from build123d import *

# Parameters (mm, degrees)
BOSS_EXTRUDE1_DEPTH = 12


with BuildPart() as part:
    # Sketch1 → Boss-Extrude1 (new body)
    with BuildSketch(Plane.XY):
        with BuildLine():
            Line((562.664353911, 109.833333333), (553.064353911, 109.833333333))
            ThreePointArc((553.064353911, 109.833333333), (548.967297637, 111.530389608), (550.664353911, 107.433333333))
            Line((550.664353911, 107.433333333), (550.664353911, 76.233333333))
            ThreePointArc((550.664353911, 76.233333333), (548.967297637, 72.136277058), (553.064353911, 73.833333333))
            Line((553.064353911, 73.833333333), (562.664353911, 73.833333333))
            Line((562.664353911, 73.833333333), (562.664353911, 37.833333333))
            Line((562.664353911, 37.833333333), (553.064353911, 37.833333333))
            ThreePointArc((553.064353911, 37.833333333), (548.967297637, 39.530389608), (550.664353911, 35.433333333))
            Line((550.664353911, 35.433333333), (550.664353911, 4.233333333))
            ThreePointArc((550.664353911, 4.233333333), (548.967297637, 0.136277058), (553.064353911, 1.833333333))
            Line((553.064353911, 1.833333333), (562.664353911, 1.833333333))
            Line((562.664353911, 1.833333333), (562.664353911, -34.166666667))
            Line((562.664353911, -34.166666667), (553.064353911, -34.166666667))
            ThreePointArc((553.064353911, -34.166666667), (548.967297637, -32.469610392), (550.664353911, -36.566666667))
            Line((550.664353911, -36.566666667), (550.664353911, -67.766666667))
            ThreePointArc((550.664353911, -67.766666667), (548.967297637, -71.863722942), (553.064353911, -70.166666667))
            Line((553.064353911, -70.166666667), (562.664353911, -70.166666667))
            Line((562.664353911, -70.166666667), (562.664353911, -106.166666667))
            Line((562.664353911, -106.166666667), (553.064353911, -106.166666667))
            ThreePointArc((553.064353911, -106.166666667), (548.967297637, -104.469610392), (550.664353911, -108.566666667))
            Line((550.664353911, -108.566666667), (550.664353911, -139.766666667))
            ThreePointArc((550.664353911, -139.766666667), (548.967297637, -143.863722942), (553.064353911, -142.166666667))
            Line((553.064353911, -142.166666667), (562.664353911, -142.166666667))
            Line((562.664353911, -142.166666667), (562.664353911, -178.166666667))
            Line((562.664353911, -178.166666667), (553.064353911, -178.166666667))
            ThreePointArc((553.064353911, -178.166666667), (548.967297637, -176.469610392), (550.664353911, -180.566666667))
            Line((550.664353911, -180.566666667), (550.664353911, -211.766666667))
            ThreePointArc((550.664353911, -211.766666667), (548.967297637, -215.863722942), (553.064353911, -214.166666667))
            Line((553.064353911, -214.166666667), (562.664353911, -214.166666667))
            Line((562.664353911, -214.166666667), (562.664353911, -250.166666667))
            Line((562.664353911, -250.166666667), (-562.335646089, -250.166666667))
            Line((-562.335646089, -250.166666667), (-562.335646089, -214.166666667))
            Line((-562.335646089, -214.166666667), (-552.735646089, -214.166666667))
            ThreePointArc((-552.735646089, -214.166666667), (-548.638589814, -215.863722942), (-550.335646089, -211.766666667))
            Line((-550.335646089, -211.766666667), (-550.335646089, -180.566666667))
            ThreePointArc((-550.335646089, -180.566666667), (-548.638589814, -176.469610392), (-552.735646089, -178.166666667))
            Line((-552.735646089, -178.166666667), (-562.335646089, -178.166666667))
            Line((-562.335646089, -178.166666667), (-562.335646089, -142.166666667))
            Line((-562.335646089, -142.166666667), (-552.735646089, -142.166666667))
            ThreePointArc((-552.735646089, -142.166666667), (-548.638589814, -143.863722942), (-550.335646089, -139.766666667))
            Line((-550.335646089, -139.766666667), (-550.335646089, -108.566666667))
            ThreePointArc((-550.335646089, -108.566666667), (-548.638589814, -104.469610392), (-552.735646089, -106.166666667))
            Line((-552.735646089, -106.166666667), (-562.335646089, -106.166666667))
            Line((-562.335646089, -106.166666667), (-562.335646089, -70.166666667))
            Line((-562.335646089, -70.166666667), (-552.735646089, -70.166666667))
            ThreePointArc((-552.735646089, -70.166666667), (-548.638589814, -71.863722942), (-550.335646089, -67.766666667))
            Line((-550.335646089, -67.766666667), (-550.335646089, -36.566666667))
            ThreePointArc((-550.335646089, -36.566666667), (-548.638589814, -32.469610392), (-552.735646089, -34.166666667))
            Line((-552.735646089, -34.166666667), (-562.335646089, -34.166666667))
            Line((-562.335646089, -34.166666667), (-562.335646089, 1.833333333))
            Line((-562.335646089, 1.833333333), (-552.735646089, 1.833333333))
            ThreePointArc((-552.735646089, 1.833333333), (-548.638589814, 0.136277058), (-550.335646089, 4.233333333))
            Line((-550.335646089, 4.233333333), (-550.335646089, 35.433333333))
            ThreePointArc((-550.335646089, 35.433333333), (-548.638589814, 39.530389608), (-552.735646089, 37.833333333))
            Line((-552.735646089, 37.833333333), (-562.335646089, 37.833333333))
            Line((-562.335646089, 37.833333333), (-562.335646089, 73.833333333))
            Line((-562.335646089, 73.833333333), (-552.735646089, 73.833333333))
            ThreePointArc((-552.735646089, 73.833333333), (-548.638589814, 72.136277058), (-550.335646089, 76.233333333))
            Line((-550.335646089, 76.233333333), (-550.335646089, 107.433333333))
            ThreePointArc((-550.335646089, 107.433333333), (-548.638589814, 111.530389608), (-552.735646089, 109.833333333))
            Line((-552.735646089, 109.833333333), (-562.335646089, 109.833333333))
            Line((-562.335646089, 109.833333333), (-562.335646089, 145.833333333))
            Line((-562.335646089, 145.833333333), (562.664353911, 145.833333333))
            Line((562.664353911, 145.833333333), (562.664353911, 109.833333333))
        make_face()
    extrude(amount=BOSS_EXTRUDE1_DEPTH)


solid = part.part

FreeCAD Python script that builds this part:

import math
import FreeCAD as App
import Part
import Sketcher
Q = App.Units.Quantity

doc = App.newDocument("Part")
body = doc.addObject("PartDesign::Body", "Body")

# Sketch on XY plane
sketch1 = doc.addObject("Sketcher::SketchObject", "Sketch")
body.addObject(sketch1)
sketch1.AttachmentSupport = (doc.XY_Plane, [""])
sketch1.MapMode = "FlatFace"
sketch1.addGeometry([
    Part.LineSegment(App.Vector(553.1, 109.8, 0), App.Vector(562.7, 109.8, 0)),  # 0
    Part.LineSegment(App.Vector(562.7, 109.8, 0), App.Vector(562.7, 145.8, 0)),  # 1
    Part.LineSegment(App.Vector(562.7, 145.8, 0), App.Vector(-562.3, 145.8, 0)),  # 2
    Part.LineSegment(App.Vector(-562.3, 145.8, 0), App.Vector(-562.3, 109.8, 0)),  # 3
    Part.LineSegment(App.Vector(-562.3, 109.8, 0), App.Vector(-552.7, 109.8, 0)),  # 4
    Part.ArcOfCircle(Part.Circle(App.Vector(-550.3, 109.8, 0), App.Vector(0, 0, 1), 2.4), math.radians(-90), math.radians(180)),  # 5
    Part.LineSegment(App.Vector(-550.3, 107.4, 0), App.Vector(-550.3, 76.2, 0)),  # 6
    Part.ArcOfCircle(Part.Circle(App.Vector(-550.3, 73.8, 0), App.Vector(0, 0, 1), 2.4), math.radians(180), math.radians(450)),  # 7
    Part.LineSegment(App.Vector(-552.7, 73.8, 0), App.Vector(-562.3, 73.8, 0)),  # 8
    Part.LineSegment(App.Vector(-562.3, 73.8, 0), App.Vector(-562.3, 37.8, 0)),  # 9
    Part.LineSegment(App.Vector(-562.3, 37.8, 0), App.Vector(-552.7, 37.8, 0)),  # 10
    Part.ArcOfCircle(Part.Circle(App.Vector(-550.3, 37.8, 0), App.Vector(0, 0, 1), 2.4), math.radians(-90), math.radians(180)),  # 11
    Part.LineSegment(App.Vector(-550.3, 35.4, 0), App.Vector(-550.3, 4.2, 0)),  # 12
    Part.ArcOfCircle(Part.Circle(App.Vector(-550.3, 1.8, 0), App.Vector(0, 0, 1), 2.4), math.radians(180), math.radians(450)),  # 13
    Part.LineSegment(App.Vector(-552.7, 1.8, 0), App.Vector(-562.3, 1.8, 0)),  # 14
    Part.LineSegment(App.Vector(-562.3, 1.8, 0), App.Vector(-562.3, -34.2, 0)),  # 15
    Part.LineSegment(App.Vector(-562.3, -34.2, 0), App.Vector(-552.7, -34.2, 0)),  # 16
    Part.ArcOfCircle(Part.Circle(App.Vector(-550.3, -34.2, 0), App.Vector(0, 0, 1), 2.4), math.radians(-90), math.radians(180)),  # 17
    Part.LineSegment(App.Vector(-550.3, -36.6, 0), App.Vector(-550.3, -67.8, 0)),  # 18
    Part.ArcOfCircle(Part.Circle(App.Vector(-550.3, -70.2, 0), App.Vector(0, 0, 1), 2.4), math.radians(180), math.radians(450)),  # 19
    Part.LineSegment(App.Vector(-552.7, -70.2, 0), App.Vector(-562.3, -70.2, 0)),  # 20
    Part.LineSegment(App.Vector(-562.3, -70.2, 0), App.Vector(-562.3, -106.2, 0)),  # 21
    Part.LineSegment(App.Vector(-562.3, -106.2, 0), App.Vector(-552.7, -106.2, 0)),  # 22
    Part.ArcOfCircle(Part.Circle(App.Vector(-550.3, -106.2, 0), App.Vector(0, 0, 1), 2.4), math.radians(-90), math.radians(180)),  # 23
    Part.LineSegment(App.Vector(-550.3, -108.6, 0), App.Vector(-550.3, -139.8, 0)),  # 24
    Part.ArcOfCircle(Part.Circle(App.Vector(-550.3, -142.2, 0), App.Vector(0, 0, 1), 2.4), math.radians(180), math.radians(450)),  # 25
    Part.LineSegment(App.Vector(-552.7, -142.2, 0), App.Vector(-562.3, -142.2, 0)),  # 26
    Part.LineSegment(App.Vector(-562.3, -142.2, 0), App.Vector(-562.3, -178.2, 0)),  # 27
    Part.LineSegment(App.Vector(-562.3, -178.2, 0), App.Vector(-552.7, -178.2, 0)),  # 28
    Part.ArcOfCircle(Part.Circle(App.Vector(-550.3, -178.2, 0), App.Vector(0, 0, 1), 2.4), math.radians(-90), math.radians(180)),  # 29
    Part.LineSegment(App.Vector(-550.3, -180.6, 0), App.Vector(-550.3, -211.8, 0)),  # 30
    Part.ArcOfCircle(Part.Circle(App.Vector(-550.3, -214.2, 0), App.Vector(0, 0, 1), 2.4), math.radians(180), math.radians(450)),  # 31
    Part.LineSegment(App.Vector(-552.7, -214.2, 0), App.Vector(-562.3, -214.2, 0)),  # 32
    Part.LineSegment(App.Vector(-562.3, -214.2, 0), App.Vector(-562.3, -250.2, 0)),  # 33
    Part.LineSegment(App.Vector(-562.3, -250.2, 0), App.Vector(562.7, -250.2, 0)),  # 34
    Part.LineSegment(App.Vector(562.7, -250.2, 0), App.Vector(562.7, -214.2, 0)),  # 35
    Part.LineSegment(App.Vector(562.7, -214.2, 0), App.Vector(553.1, -214.2, 0)),  # 36
    Part.ArcOfCircle(Part.Circle(App.Vector(550.7, -214.2, 0), App.Vector(0, 0, 1), 2.4), math.radians(90), math.radians(360)),  # 37
    Part.LineSegment(App.Vector(550.7, -211.8, 0), App.Vector(550.7, -180.6, 0)),  # 38
    Part.ArcOfCircle(Part.Circle(App.Vector(550.7, -178.2, 0), App.Vector(0, 0, 1), 2.4), math.radians(0), math.radians(270)),  # 39
    Part.LineSegment(App.Vector(553.1, -178.2, 0), App.Vector(562.7, -178.2, 0)),  # 40
    Part.LineSegment(App.Vector(562.7, -178.2, 0), App.Vector(562.7, -142.2, 0)),  # 41
    Part.LineSegment(App.Vector(562.7, -142.2, 0), App.Vector(553.1, -142.2, 0)),  # 42
    Part.ArcOfCircle(Part.Circle(App.Vector(550.7, -142.2, 0), App.Vector(0, 0, 1), 2.4), math.radians(90), math.radians(360)),  # 43
    Part.LineSegment(App.Vector(550.7, -139.8, 0), App.Vector(550.7, -108.6, 0)),  # 44
    Part.ArcOfCircle(Part.Circle(App.Vector(550.7, -106.2, 0), App.Vector(0, 0, 1), 2.4), math.radians(0), math.radians(270)),  # 45
    Part.LineSegment(App.Vector(553.1, -106.2, 0), App.Vector(562.7, -106.2, 0)),  # 46
    Part.LineSegment(App.Vector(562.7, -106.2, 0), App.Vector(562.7, -70.2, 0)),  # 47
    Part.LineSegment(App.Vector(562.7, -70.2, 0), App.Vector(553.1, -70.2, 0)),  # 48
    Part.ArcOfCircle(Part.Circle(App.Vector(550.7, -70.2, 0), App.Vector(0, 0, 1), 2.4), math.radians(90), math.radians(360)),  # 49
    Part.LineSegment(App.Vector(550.7, -67.8, 0), App.Vector(550.7, -36.6, 0)),  # 50
    Part.ArcOfCircle(Part.Circle(App.Vector(550.7, -34.2, 0), App.Vector(0, 0, 1), 2.4), math.radians(0), math.radians(270)),  # 51
    Part.LineSegment(App.Vector(553.1, -34.2, 0), App.Vector(562.7, -34.2, 0)),  # 52
    Part.LineSegment(App.Vector(562.7, -34.2, 0), App.Vector(562.7, 1.8, 0)),  # 53
    Part.LineSegment(App.Vector(562.7, 1.8, 0), App.Vector(553.1, 1.8, 0)),  # 54
    Part.ArcOfCircle(Part.Circle(App.Vector(550.7, 1.8, 0), App.Vector(0, 0, 1), 2.4), math.radians(90), math.radians(360)),  # 55
    Part.LineSegment(App.Vector(550.7, 4.2, 0), App.Vector(550.7, 35.4, 0)),  # 56
    Part.ArcOfCircle(Part.Circle(App.Vector(550.7, 37.8, 0), App.Vector(0, 0, 1), 2.4), math.radians(0), math.radians(270)),  # 57
    Part.LineSegment(App.Vector(553.1, 37.8, 0), App.Vector(562.7, 37.8, 0)),  # 58
    Part.LineSegment(App.Vector(562.7, 37.8, 0), App.Vector(562.7, 73.8, 0)),  # 59
    Part.LineSegment(App.Vector(562.7, 73.8, 0), App.Vector(553.1, 73.8, 0)),  # 60
    Part.ArcOfCircle(Part.Circle(App.Vector(550.7, 73.8, 0), App.Vector(0, 0, 1), 2.4), math.radians(90), math.radians(360)),  # 61
    Part.LineSegment(App.Vector(550.7, 76.2, 0), App.Vector(550.7, 107.4, 0)),  # 62
    Part.ArcOfCircle(Part.Circle(App.Vector(550.7, 109.8, 0), App.Vector(0, 0, 1), 2.4), math.radians(0), math.radians(270)),  # 63
], False)
sketch1.addConstraint([
    Sketcher.Constraint("Coincident", 0, 2, 1, 1),
    Sketcher.Constraint("Coincident", 1, 2, 2, 1),
    Sketcher.Constraint("Coincident", 2, 2, 3, 1),
    Sketcher.Constraint("Coincident", 3, 2, 4, 1),
    Sketcher.Constraint("Coincident", 4, 2, 5, 2),
    Sketcher.Constraint("Coincident", 5, 1, 6, 1),
    Sketcher.Constraint("Coincident", 6, 2, 7, 2),
    Sketcher.Constraint("Coincident", 7, 1, 8, 1),
    Sketcher.Constraint("Coincident", 8, 2, 9, 1),
    Sketcher.Constraint("Coincident", 9, 2, 10, 1),
    Sketcher.Constraint("Coincident", 10, 2, 11, 2),
    Sketcher.Constraint("Coincident", 11, 1, 12, 1),
    Sketcher.Constraint("Coincident", 12, 2, 13, 2),
    Sketcher.Constraint("Coincident", 13, 1, 14, 1),
    Sketcher.Constraint("Coincident", 14, 2, 15, 1),
    Sketcher.Constraint("Coincident", 15, 2, 16, 1),
    Sketcher.Constraint("Coincident", 16, 2, 17, 2),
    Sketcher.Constraint("Coincident", 17, 1, 18, 1),
    Sketcher.Constraint("Coincident", 18, 2, 19, 2),
    Sketcher.Constraint("Coincident", 19, 1, 20, 1),
    Sketcher.Constraint("Coincident", 20, 2, 21, 1),
    Sketcher.Constraint("Coincident", 21, 2, 22, 1),
    Sketcher.Constraint("Coincident", 22, 2, 23, 2),
    Sketcher.Constraint("Coincident", 23, 1, 24, 1),
    Sketcher.Constraint("Coincident", 24, 2, 25, 2),
    Sketcher.Constraint("Coincident", 25, 1, 26, 1),
    Sketcher.Constraint("Coincident", 26, 2, 27, 1),
    Sketcher.Constraint("Coincident", 27, 2, 28, 1),
    Sketcher.Constraint("Coincident", 28, 2, 29, 2),
    Sketcher.Constraint("Coincident", 29, 1, 30, 1),
    Sketcher.Constraint("Coincident", 30, 2, 31, 2),
    Sketcher.Constraint("Coincident", 31, 1, 32, 1),
    Sketcher.Constraint("Coincident", 32, 2, 33, 1),
    Sketcher.Constraint("Coincident", 33, 2, 34, 1),
    Sketcher.Constraint("Coincident", 34, 2, 35, 1),
    Sketcher.Constraint("Coincident", 35, 2, 36, 1),
    Sketcher.Constraint("Coincident", 36, 2, 37, 2),
    Sketcher.Constraint("Coincident", 37, 1, 38, 1),
    Sketcher.Constraint("Coincident", 38, 2, 39, 2),
    Sketcher.Constraint("Coincident", 39, 1, 40, 1),
    Sketcher.Constraint("Coincident", 40, 2, 41, 1),
    Sketcher.Constraint("Coincident", 41, 2, 42, 1),
    Sketcher.Constraint("Coincident", 42, 2, 43, 2),
    Sketcher.Constraint("Coincident", 43, 1, 44, 1),
    Sketcher.Constraint("Coincident", 44, 2, 45, 2),
    Sketcher.Constraint("Coincident", 45, 1, 46, 1),
    Sketcher.Constraint("Coincident", 46, 2, 47, 1),
    Sketcher.Constraint("Coincident", 47, 2, 48, 1),
    Sketcher.Constraint("Coincident", 48, 2, 49, 2),
    Sketcher.Constraint("Coincident", 49, 1, 50, 1),
    Sketcher.Constraint("Coincident", 50, 2, 51, 2),
    Sketcher.Constraint("Coincident", 51, 1, 52, 1),
    Sketcher.Constraint("Coincident", 52, 2, 53, 1),
    Sketcher.Constraint("Coincident", 53, 2, 54, 1),
    Sketcher.Constraint("Coincident", 54, 2, 55, 2),
    Sketcher.Constraint("Coincident", 55, 1, 56, 1),
    Sketcher.Constraint("Coincident", 56, 2, 57, 2),
    Sketcher.Constraint("Coincident", 57, 1, 58, 1),
    Sketcher.Constraint("Coincident", 58, 2, 59, 1),
    Sketcher.Constraint("Coincident", 59, 2, 60, 1),
    Sketcher.Constraint("Coincident", 60, 2, 61, 2),
    Sketcher.Constraint("Coincident", 61, 1, 62, 1),
    Sketcher.Constraint("Coincident", 62, 2, 63, 2),
    Sketcher.Constraint("Coincident", 63, 1, 0, 1),
    Sketcher.Constraint("Horizontal", 0),
    Sketcher.Constraint("Vertical", 1),
    Sketcher.Constraint("Horizontal", 2),
    Sketcher.Constraint("Vertical", 3),
    Sketcher.Constraint("Horizontal", 4),
    Sketcher.Constraint("Vertical", 6),
    Sketcher.Constraint("Horizontal", 8),
    Sketcher.Constraint("Vertical", 9),
    Sketcher.Constraint("Horizontal", 10),
    Sketcher.Constraint("Vertical", 12),
    Sketcher.Constraint("Horizontal", 14),
    Sketcher.Constraint("Vertical", 15),
    Sketcher.Constraint("Horizontal", 16),
    Sketcher.Constraint("Vertical", 18),
    Sketcher.Constraint("Horizontal", 20),
    Sketcher.Constraint("Vertical", 21),
    Sketcher.Constraint("Horizontal", 22),
    Sketcher.Constraint("Vertical", 24),
    Sketcher.Constraint("Horizontal", 26),
    Sketcher.Constraint("Vertical", 27),
    Sketcher.Constraint("Horizontal", 28),
    Sketcher.Constraint("Vertical", 30),
    Sketcher.Constraint("Horizontal", 32),
    Sketcher.Constraint("Vertical", 33),
    Sketcher.Constraint("Horizontal", 34),
    Sketcher.Constraint("Vertical", 35),
    Sketcher.Constraint("Horizontal", 36),
    Sketcher.Constraint("Vertical", 38),
    Sketcher.Constraint("Horizontal", 40),
    Sketcher.Constraint("Vertical", 41),
    Sketcher.Constraint("Horizontal", 42),
    Sketcher.Constraint("Vertical", 44),
    Sketcher.Constraint("Horizontal", 46),
    Sketcher.Constraint("Vertical", 47),
    Sketcher.Constraint("Horizontal", 48),
    Sketcher.Constraint("Vertical", 50),
    Sketcher.Constraint("Horizontal", 52),
    Sketcher.Constraint("Vertical", 53),
    Sketcher.Constraint("Horizontal", 54),
    Sketcher.Constraint("Vertical", 56),
    Sketcher.Constraint("Horizontal", 58),
    Sketcher.Constraint("Vertical", 59),
    Sketcher.Constraint("Horizontal", 60),
    Sketcher.Constraint("Vertical", 62),
    Sketcher.Constraint("Equal", 5, 7),
    Sketcher.Constraint("Equal", 7, 11),
    Sketcher.Constraint("Equal", 11, 13),
    Sketcher.Constraint("Equal", 13, 17),
    Sketcher.Constraint("Equal", 17, 19),
    Sketcher.Constraint("Equal", 19, 23),
    Sketcher.Constraint("Equal", 23, 25),
    Sketcher.Constraint("Equal", 25, 29),
    Sketcher.Constraint("Equal", 29, 31),
    Sketcher.Constraint("Equal", 31, 37),
    Sketcher.Constraint("Equal", 37, 39),
    Sketcher.Constraint("Equal", 39, 43),
    Sketcher.Constraint("Equal", 43, 45),
    Sketcher.Constraint("Equal", 45, 49),
    Sketcher.Constraint("Equal", 49, 51),
    Sketcher.Constraint("Equal", 51, 55),
    Sketcher.Constraint("Equal", 55, 57),
    Sketcher.Constraint("Equal", 57, 61),
    Sketcher.Constraint("Equal", 61, 63),
    Sketcher.Constraint("Horizontal", 31, 3, 37, 3),
    Sketcher.Constraint("Horizontal", 29, 3, 39, 3),
    Sketcher.Constraint("Horizontal", 25, 3, 43, 3),
    Sketcher.Constraint("Horizontal", 23, 3, 45, 3),
    Sketcher.Constraint("Horizontal", 19, 3, 49, 3),
    Sketcher.Constraint("Horizontal", 17, 3, 51, 3),
    Sketcher.Constraint("Horizontal", 13, 3, 55, 3),
    Sketcher.Constraint("Horizontal", 11, 3, 57, 3),
    Sketcher.Constraint("Horizontal", 7, 3, 61, 3),
    Sketcher.Constraint("Horizontal", 5, 3, 63, 3),
    Sketcher.Constraint("Horizontal", 63, 3, 0, 2),
    Sketcher.Constraint("Horizontal", 0, 2, 3, 2),
    Sketcher.Constraint("Horizontal", 61, 3, 7, 1),
    Sketcher.Constraint("Horizontal", 57, 3, 9, 2),
    Sketcher.Constraint("Horizontal", 55, 3, 13, 1),
    Sketcher.Constraint("Horizontal", 51, 3, 15, 2),
    Sketcher.Constraint("Horizontal", 49, 3, 19, 1),
    Sketcher.Constraint("Horizontal", 45, 3, 21, 2),
    Sketcher.Constraint("Horizontal", 43, 3, 25, 1),
    Sketcher.Constraint("Horizontal", 39, 3, 27, 2),
    Sketcher.Constraint("Horizontal", 37, 3, 31, 1),
    Sketcher.Constraint("Horizontal", 32, 2, 35, 2),
    Sketcher.Constraint("Horizontal", 28, 2, 39, 1),
    Sketcher.Constraint("Horizontal", 26, 2, 41, 2),
    Sketcher.Constraint("Horizontal", 22, 2, 45, 1),
    Sketcher.Constraint("Horizontal", 20, 2, 47, 2),
    Sketcher.Constraint("Horizontal", 16, 2, 51, 1),
    Sketcher.Constraint("Horizontal", 14, 2, 53, 2),
    Sketcher.Constraint("Horizontal", 10, 2, 57, 1),
    Sketcher.Constraint("Horizontal", 8, 2, 59, 2),
    Sketcher.Constraint("Vertical", 5, 3, 7, 3),
    Sketcher.Constraint("Vertical", 7, 3, 11, 3),
    Sketcher.Constraint("Vertical", 11, 3, 13, 3),
    Sketcher.Constraint("Vertical", 13, 3, 17, 3),
    Sketcher.Constraint("Vertical", 17, 3, 19, 3),
    Sketcher.Constraint("Vertical", 19, 3, 23, 3),
    Sketcher.Constraint("Vertical", 23, 3, 25, 3),
    Sketcher.Constraint("Vertical", 25, 3, 29, 3),
    Sketcher.Constraint("Vertical", 29, 3, 31, 3),
    Sketcher.Constraint("Vertical", 37, 3, 39, 3),
    Sketcher.Constraint("Vertical", 39, 3, 43, 3),
    Sketcher.Constraint("Vertical", 43, 3, 45, 3),
    Sketcher.Constraint("Vertical", 45, 3, 49, 3),
    Sketcher.Constraint("Vertical", 49, 3, 51, 3),
    Sketcher.Constraint("Vertical", 51, 3, 55, 3),
    Sketcher.Constraint("Vertical", 55, 3, 57, 3),
    Sketcher.Constraint("Vertical", 57, 3, 61, 3),
    Sketcher.Constraint("Vertical", 61, 3, 63, 3),
    Sketcher.Constraint("Vertical", 31, 3, 5, 1),
    Sketcher.Constraint("Vertical", 3, 2, 8, 2),
    Sketcher.Constraint("Vertical", 6, 2, 11, 1),
    Sketcher.Constraint("Vertical", 9, 2, 14, 2),
    Sketcher.Constraint("Vertical", 12, 2, 17, 1),
    Sketcher.Constraint("Vertical", 15, 2, 20, 2),
    Sketcher.Constraint("Vertical", 18, 2, 23, 1),
    Sketcher.Constraint("Vertical", 21, 2, 26, 2),
    Sketcher.Constraint("Vertical", 24, 2, 29, 1),
    Sketcher.Constraint("Vertical", 27, 2, 32, 2),
    Sketcher.Constraint("Vertical", 1, 2, 34, 2),
    Sketcher.Constraint("Vertical", 63, 3, 37, 1),
    Sketcher.Constraint("Vertical", 35, 2, 40, 2),
    Sketcher.Constraint("Vertical", 38, 2, 43, 1),
    Sketcher.Constraint("Vertical", 41, 2, 46, 2),
    Sketcher.Constraint("Vertical", 44, 2, 49, 1),
    Sketcher.Constraint("Vertical", 47, 2, 52, 2),
    Sketcher.Constraint("Vertical", 50, 2, 55, 1),
    Sketcher.Constraint("Vertical", 53, 2, 58, 2),
    Sketcher.Constraint("Vertical", 56, 2, 61, 1),
    Sketcher.Constraint("Equal", 0, 4),
    Sketcher.Constraint("Equal", 3, 9),
    Sketcher.Constraint("Equal", 6, 12),
    Sketcher.Constraint("Equal", 9, 15),
    Sketcher.Constraint("Equal", 12, 18),
    Sketcher.Constraint("Equal", 15, 21),
    Sketcher.Constraint("Equal", 18, 24),
    Sketcher.Constraint("Equal", 21, 27),
    Sketcher.Constraint("Equal", 24, 30),
    Sketcher.Constraint("Equal", 27, 33),
    Sketcher.Constraint("Radius", 5, Q("2.4 mm")),
    Sketcher.Constraint("DistanceX", 2, 2, 2, 1, Q("1125 mm")),
    Sketcher.Constraint("DistanceY", 1, 1, 1, 2, Q("36 mm")),
    Sketcher.Constraint("DistanceX", 0, 1, 0, 2, Q("9.6 mm")),
    Sketcher.Constraint("DistanceY", 6, 2, 6, 1, Q("31.2 mm")),
    Sketcher.Constraint("DistanceX", 5, 3, -1, 1, Q("550.335646 mm")),
    Sketcher.Constraint("DistanceY", -1, 1, 5, 3, Q("109.833333 mm")),
])
pad1 = doc.addObject("PartDesign::Pad", "Pad")
body.addObject(pad1)
pad1.Profile = sketch1
pad1.Length = 12

doc.recompute()
